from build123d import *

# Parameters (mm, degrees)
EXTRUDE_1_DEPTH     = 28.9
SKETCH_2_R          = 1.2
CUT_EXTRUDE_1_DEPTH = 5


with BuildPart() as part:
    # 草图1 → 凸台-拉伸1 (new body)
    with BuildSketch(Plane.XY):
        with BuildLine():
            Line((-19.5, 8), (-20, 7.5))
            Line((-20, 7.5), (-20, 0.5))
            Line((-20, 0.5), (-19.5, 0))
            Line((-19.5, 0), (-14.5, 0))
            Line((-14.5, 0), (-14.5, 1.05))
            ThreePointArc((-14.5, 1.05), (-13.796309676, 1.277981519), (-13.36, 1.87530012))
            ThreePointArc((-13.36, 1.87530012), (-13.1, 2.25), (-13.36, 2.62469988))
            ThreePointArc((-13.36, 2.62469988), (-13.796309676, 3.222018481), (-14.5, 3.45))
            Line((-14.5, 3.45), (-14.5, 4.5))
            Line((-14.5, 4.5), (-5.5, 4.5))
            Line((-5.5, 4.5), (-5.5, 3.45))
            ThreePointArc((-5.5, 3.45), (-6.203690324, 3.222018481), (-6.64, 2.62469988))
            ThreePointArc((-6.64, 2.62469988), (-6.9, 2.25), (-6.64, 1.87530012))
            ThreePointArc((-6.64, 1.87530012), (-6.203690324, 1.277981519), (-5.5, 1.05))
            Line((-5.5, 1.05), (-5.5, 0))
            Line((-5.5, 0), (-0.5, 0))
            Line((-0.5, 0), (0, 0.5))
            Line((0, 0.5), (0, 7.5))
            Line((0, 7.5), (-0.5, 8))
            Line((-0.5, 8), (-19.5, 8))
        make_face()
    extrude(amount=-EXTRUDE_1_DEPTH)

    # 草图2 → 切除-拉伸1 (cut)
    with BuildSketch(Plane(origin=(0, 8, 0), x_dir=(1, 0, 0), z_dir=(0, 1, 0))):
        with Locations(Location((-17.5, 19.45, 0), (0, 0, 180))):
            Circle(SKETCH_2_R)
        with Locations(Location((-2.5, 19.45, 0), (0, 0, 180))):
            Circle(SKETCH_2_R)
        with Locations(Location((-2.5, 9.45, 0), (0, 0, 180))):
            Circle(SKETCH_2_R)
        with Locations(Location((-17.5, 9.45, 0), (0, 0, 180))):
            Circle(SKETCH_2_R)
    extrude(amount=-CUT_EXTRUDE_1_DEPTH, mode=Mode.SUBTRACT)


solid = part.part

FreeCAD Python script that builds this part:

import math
import FreeCAD as App
import Part
import Sketcher

doc = App.newDocument("Part")
body = doc.addObject("PartDesign::Body", "Body")

# Sketch on XY plane
sketch1 = doc.addObject("Sketcher::SketchObject", "Sketch")
body.addObject(sketch1)
sketch1.AttachmentSupport = (doc.XY_Plane, [""])
sketch1.MapMode = "FlatFace"
sketch1.addGeometry([
    Part.LineSegment(App.Vector(-19.5, 8, 0), App.Vector(-20, 7.5, 0)),  # 0
    Part.LineSegment(App.Vector(-20, 7.5, 0), App.Vector(-20, 0.5, 0)),  # 1
    Part.LineSegment(App.Vector(-20, 0.5, 0), App.Vector(-19.5, 0, 0)),  # 2
    Part.LineSegment(App.Vector(-19.5, 0, 0), App.Vector(-14.5, 0, 0)),  # 3
    Part.LineSegment(App.Vector(-14.5, 0, 0), App.Vector(-14.5, 1.05, 0)),  # 4
    Part.ArcOfCircle(Part.Circle(App.Vector(-14.5, 2.25, 0), App.Vector(0, 0, 1), 1.2), math.radians(-90), math.radians(-18)),  # 5
    Part.ArcOfCircle(Part.Circle(App.Vector(-13.5, 2.25, 0), App.Vector(0, 0, 1), 0.4), math.radians(-70), math.radians(70)),  # 6
    Part.ArcOfCircle(Part.Circle(App.Vector(-14.5, 2.25, 0), App.Vector(0, 0, 1), 1.2), math.radians(18), math.radians(90)),  # 7
    Part.LineSegment(App.Vector(-14.5, 3.45, 0), App.Vector(-14.5, 4.5, 0)),  # 8
    Part.LineSegment(App.Vector(-14.5, 4.5, 0), App.Vector(-5.5, 4.5, 0)),  # 9
    Part.LineSegment(App.Vector(-5.5, 4.5, 0), App.Vector(-5.5, 3.45, 0)),  # 10
    Part.ArcOfCircle(Part.Circle(App.Vector(-5.5, 2.25, 0), App.Vector(0, 0, 1), 1.2), math.radians(90), math.radians(162)),  # 11
    Part.ArcOfCircle(Part.Circle(App.Vector(-6.5, 2.25, 0), App.Vector(0, 0, 1), 0.4), math.radians(110), math.radians(250)),  # 12
    Part.ArcOfCircle(Part.Circle(App.Vector(-5.5, 2.25, 0), App.Vector(0, 0, 1), 1.2), math.radians(-162), math.radians(-90)),  # 13
    Part.LineSegment(App.Vector(-5.5, 1.05, 0), App.Vector(-5.5, 0, 0)),  # 14
    Part.LineSegment(App.Vector(-5.5, 0, 0), App.Vector(-0.5, 0, 0)),  # 15
    Part.LineSegment(App.Vector(-0.5, 0, 0), App.Vector(0, 0.5, 0)),  # 16
    Part.LineSegment(App.Vector(0, 0.5, 0), App.Vector(0, 7.5, 0)),  # 17
    Part.LineSegment(App.Vector(0, 7.5, 0), App.Vector(-0.5, 8, 0)),  # 18
    Part.LineSegment(App.Vector(-0.5, 8, 0), App.Vector(-19.5, 8, 0)),  # 19
], False)
sketch1.addConstraint([
    Sketcher.Constraint("Coincident", 0, 2, 1, 1),
    Sketcher.Constraint("Coincident", 1, 2, 2, 1),
    Sketcher.Constraint("Coincident", 2, 2, 3, 1),
    Sketcher.Constraint("Coincident", 3, 2, 4, 1),
    Sketcher.Constraint("Coincident", 4, 2, 5, 1),
    Sketcher.Constraint("Coincident", 5, 2, 6, 1),
    Sketcher.Constraint("Coincident", 6, 2, 7, 1),
    Sketcher.Constraint("Coincident", 7, 2, 8, 1),
    Sketcher.Constraint("Coincident", 8, 2, 9, 1),
    Sketcher.Constraint("Coincident", 9, 2, 10, 1),
    Sketcher.Constraint("Coincident", 10, 2, 11, 1),
    Sketcher.Constraint("Coincident", 11, 2, 12, 1),
    Sketcher.Constraint("Coincident", 12, 2, 13, 1),
    Sketcher.Constraint("Coincident", 13, 2, 14, 1),
    Sketcher.Constraint("Coincident", 14, 2, 15, 1),
    Sketcher.Constraint("Coincident", 15, 2, 16, 1),
    Sketcher.Constraint("Coincident", 16, 2, 17, 1),
    Sketcher.Constraint("Coincident", 17, 2, 18, 1),
    Sketcher.Constraint("Coincident", 18, 2, 19, 1),
    Sketcher.Constraint("Coincident", 19, 2, 0, 1),
    Sketcher.Constraint("Vertical", 1),
    Sketcher.Constraint("Horizontal", 3),
    Sketcher.Constraint("Vertical", 4),
    Sketcher.Constraint("Vertical", 8),
    Sketcher.Constraint("Horizontal", 9),
    Sketcher.Constraint("Vertical", 10),
    Sketcher.Constraint("Vertical", 14),
    Sketcher.Constraint("Horizontal", 15),
    Sketcher.Constraint("Vertical", 17),
    Sketcher.Constraint("Horizontal", 19),
    Sketcher.Constraint("Coincident", 7, 3, 5, 3),
    Sketcher.Constraint("Coincident", 13, 3, 11, 3),
    Sketcher.Constraint("Equal", 5, 7),
    Sketcher.Constraint("Equal", 7, 11),
    Sketcher.Constraint("Equal", 6, 12),
    Sketcher.Constraint("Equal", 11, 13),
    Sketcher.Constraint("PointOnObject", 2, 2, -1),
    Sketcher.Constraint("PointOnObject", 14, 2, -1),
    Sketcher.Constraint("PointOnObject", 16, 2, -2),
    Sketcher.Constraint("Perpendicular", 0, 2),
    Sketcher.Constraint("Perpendicular", 2, 16),
    Sketcher.Constraint("Perpendicular", 16, 18),
    Sketcher.Constraint("Horizontal", 5, 3, 6, 3),
    Sketcher.Constraint("Horizontal", 7, 3, 11, 3),
    Sketcher.Constraint("Horizontal", 11, 3, 12, 3),
    Sketcher.Constraint("Horizontal", 6, 2, 11, 2),
    Sketcher.Constraint("Horizontal", 1, 2, 16, 2),
    Sketcher.Constraint("Horizontal", 0, 2, 17, 2),
    Sketcher.Constraint("Vertical", 7, 3, 3, 2),
    Sketcher.Constraint("Vertical", 4, 2, 7, 2),
    Sketcher.Constraint("Vertical", 13, 3, 9, 2),
    Sketcher.Constraint("Vertical", 10, 2, 13, 2),
    Sketcher.Constraint("Vertical", 15, 2, 18, 2),
    Sketcher.Constraint("Vertical", 2, 2, 19, 2),
    Sketcher.Constraint("Equal", 3, 15),
    Sketcher.Constraint("Equal", 4, 8),
    Sketcher.Constraint("Radius", 5, 1.2),
    Sketcher.Constraint("Radius", 6, 0.4),
    Sketcher.Constraint("DistanceX", 3, 1, 3, 2, 5.0),
    Sketcher.Constraint("DistanceX", 9, 1, 9, 2, 9.0),
    Sketcher.Constraint("DistanceY", 1, 2, 1, 1, 7.0),
    Sketcher.Constraint("DistanceX", 0, 2, -1, 1, 20.0),
    Sketcher.Constraint("DistanceX", 5, 3, 6, 3, 1.0),
    Sketcher.Constraint("DistanceY", 9, 2, 17, 2, 3.0),
])
pad1 = doc.addObject("PartDesign::Pad", "Pad")
body.addObject(pad1)
pad1.Profile = sketch1
pad1.Length = 28.9
pad1.Reversed = True

# Sketch on XZ plane
sketch2 = doc.addObject("Sketcher::SketchObject", "Sketch001")
body.addObject(sketch2)
sketch2.AttachmentSupport = (doc.XZ_Plane, [""])
sketch2.MapMode = "FlatFace"
sketch2.AttachmentOffset = App.Placement(App.Vector(0, 0, -8), App.Rotation())
sketch2.addGeometry([
    Part.Circle(App.Vector(-17.5, -19.4, 0), App.Vector(0, 0, 1), 1.2),
    Part.Circle(App.Vector(-2.5, -19.4, 0), App.Vector(0, 0, 1), 1.2),
    Part.Circle(App.Vector(-2.5, -9.4, 0), App.Vector(0, 0, 1), 1.2),
    Part.Circle(App.Vector(-17.5, -9.4, 0), App.Vector(0, 0, 1), 1.2),
], False)
sketch2.addConstraint([
    Sketcher.Constraint("Equal", 0, 1),
    Sketcher.Constraint("Equal", 1, 2),
    Sketcher.Constraint("Equal", 2, 3),
    Sketcher.Constraint("Horizontal", 0, 3, 1, 3),
    Sketcher.Constraint("Horizontal", 2, 3, 3, 3),
    Sketcher.Constraint("Vertical", 1, 3, 2, 3),
    Sketcher.Constraint("Vertical", 0, 3, 3, 3),
    Sketcher.Constraint("Diameter", 0, 2.4),
    Sketcher.Constraint("DistanceX", 0, 3, 1, 3, 15.0),
    Sketcher.Constraint("DistanceY", 1, 3, 2, 3, 10.0),
    Sketcher.Constraint("DistanceX", 0, 3, -1, 1, 17.5),
    Sketcher.Constraint("DistanceY", 0, 3, -1, 1, 19.45),
])
pocket1 = doc.addObject("PartDesign::Pocket", "Pocket")
body.addObject(pocket1)
pocket1.Profile = sketch2
pocket1.Length = 5
pocket1.Reversed = True

doc.recompute()
